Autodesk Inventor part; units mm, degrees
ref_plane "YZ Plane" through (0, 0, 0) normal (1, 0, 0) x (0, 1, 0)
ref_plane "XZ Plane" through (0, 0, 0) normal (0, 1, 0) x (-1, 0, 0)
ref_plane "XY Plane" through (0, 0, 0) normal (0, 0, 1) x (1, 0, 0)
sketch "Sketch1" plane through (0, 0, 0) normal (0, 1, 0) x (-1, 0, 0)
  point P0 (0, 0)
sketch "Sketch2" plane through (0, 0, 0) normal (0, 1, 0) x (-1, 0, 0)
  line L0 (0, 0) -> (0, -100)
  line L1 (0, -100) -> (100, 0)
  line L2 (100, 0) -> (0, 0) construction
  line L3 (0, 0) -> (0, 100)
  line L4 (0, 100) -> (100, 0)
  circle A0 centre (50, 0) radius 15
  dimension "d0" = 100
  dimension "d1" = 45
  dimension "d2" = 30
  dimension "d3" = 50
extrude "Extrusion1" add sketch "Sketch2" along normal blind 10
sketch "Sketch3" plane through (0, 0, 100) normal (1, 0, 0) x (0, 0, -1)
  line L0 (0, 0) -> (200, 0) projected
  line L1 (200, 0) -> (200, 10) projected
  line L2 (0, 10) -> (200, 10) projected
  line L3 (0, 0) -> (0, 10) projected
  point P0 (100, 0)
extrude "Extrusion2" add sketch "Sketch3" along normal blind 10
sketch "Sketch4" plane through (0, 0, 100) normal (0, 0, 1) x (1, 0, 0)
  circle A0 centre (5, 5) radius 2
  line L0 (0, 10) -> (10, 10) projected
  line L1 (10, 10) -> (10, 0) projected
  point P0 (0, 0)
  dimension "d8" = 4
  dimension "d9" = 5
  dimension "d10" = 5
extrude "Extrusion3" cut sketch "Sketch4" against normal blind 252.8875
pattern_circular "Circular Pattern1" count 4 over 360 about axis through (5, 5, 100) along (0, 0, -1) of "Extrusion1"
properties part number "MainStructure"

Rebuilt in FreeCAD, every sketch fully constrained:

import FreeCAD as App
import Part
import Sketcher
from FreeCAD import Vector

doc = App.newDocument("Part")
body = doc.addObject("PartDesign::Body", "Body")

# Sketch on XZ plane
sketch1 = body.newObject("Sketcher::SketchObject", "Sketch")
sketch1.AttachmentSupport = (doc.getObject("XZ_Plane"), [""])
sketch1.MapMode = "FlatFace"
sketch1.addGeometry([
    Part.LineSegment(Vector(0, 100, 0), Vector(0, -100, 0)),
    Part.LineSegment(Vector(0, -100, 0), Vector(-100, 0, 0)),
    Part.LineSegment(Vector(-100, 0, 0), Vector(0, 100, 0)),
    Part.Circle(Vector(-50, 0, 0), Vector(0, 0, 1), 15),
], False)
sketch1.addConstraint([
    Sketcher.Constraint("Coincident", 0, 2, 1, 1),
    Sketcher.Constraint("Coincident", 1, 2, 2, 1),
    Sketcher.Constraint("Coincident", 2, 2, 0, 1),
    Sketcher.Constraint("Vertical", 0),
    Sketcher.Constraint("Symmetric", 0, 2, 2, 2, -1, 1),
    Sketcher.Constraint("PointOnObject", 3, 3, -1),
    Sketcher.Constraint("PointOnObject", 1, 2, -1),
    Sketcher.Constraint("Perpendicular", 1, 2),
    Sketcher.Constraint("Diameter", 3, 30.0),
    Sketcher.Constraint("DistanceX", 3, 3, -1, 1, 50.0),
    Sketcher.Constraint("DistanceY", 0, 2, -1, 1, 100.0),
])
pad1 = body.newObject("PartDesign::Pad", "Pad")
pad1.Profile = sketch1
pad1.Length = 10
pad1.Reversed = True

# Sketch on YZ plane
sketch2 = body.newObject("Sketcher::SketchObject", "Sketch001")
sketch2.AttachmentSupport = (doc.getObject("YZ_Plane"), [""])
sketch2.MapMode = "FlatFace"
sketch2.addGeometry([
    Part.LineSegment(Vector(10, 100, 0), Vector(0, 100, 0)),
    Part.LineSegment(Vector(0, 100, 0), Vector(0, -100, 0)),
    Part.LineSegment(Vector(0, -100, 0), Vector(10, -100, 0)),
    Part.LineSegment(Vector(10, -100, 0), Vector(10, 100, 0)),
], False)
sketch2.addConstraint([
    Sketcher.Constraint("Coincident", 0, 2, 1, 1),
    Sketcher.Constraint("Coincident", 1, 2, 2, 1),
    Sketcher.Constraint("Coincident", 2, 2, 3, 1),
    Sketcher.Constraint("Coincident", 3, 2, 0, 1),
    Sketcher.Constraint("Horizontal", 0),
    Sketcher.Constraint("Vertical", 1),
    Sketcher.Constraint("Horizontal", 2),
    Sketcher.Constraint("Vertical", 3),
    Sketcher.Constraint("Symmetric", 0, 2, 1, 2, -1, 1),
    Sketcher.Constraint("DistanceX", 0, 2, 0, 1, 10.0),
    Sketcher.Constraint("DistanceY", 1, 2, 1, 1, 200.0),
])
pad2 = body.newObject("PartDesign::Pad", "Pad001")
pad2.Profile = sketch2
pad2.Length = 10

# Sketch on XY plane
sketch3 = body.newObject("Sketcher::SketchObject", "Sketch002")
sketch3.AttachmentSupport = (doc.getObject("XY_Plane"), [""])
sketch3.MapMode = "FlatFace"
sketch3.AttachmentOffset = App.Placement(Vector(0, 0, 100), App.Rotation())
sketch3.addGeometry(Part.Circle(Vector(5, 5, 0), Vector(0, 0, 1), 2), False)
sketch3.addConstraint([
    Sketcher.Constraint("Diameter", 0, 4.0),
    Sketcher.Constraint("DistanceX", -1, 1, 0, 3, 5.0),
    Sketcher.Constraint("DistanceY", -1, 1, 0, 3, 5.0),
])
pocket1 = body.newObject("PartDesign::Pocket", "Pocket")
pocket1.Profile = sketch3
pocket1.Length = 252.8875
doc.recompute()

datumline = body.newObject("PartDesign::Line", "DatumLine")
datumline.Placement = App.Placement(Vector(5, 5, 0), App.Rotation(Vector(0, 0, 1), Vector(0, 0, 1)))
polarpattern = body.newObject("PartDesign::PolarPattern", "PolarPattern")
polarpattern.Originals = [pad1]
polarpattern.Axis = (datumline, [""])
polarpattern.Angle = 360
polarpattern.Occurrences = 4
body.Tip = polarpattern

doc.recompute()
